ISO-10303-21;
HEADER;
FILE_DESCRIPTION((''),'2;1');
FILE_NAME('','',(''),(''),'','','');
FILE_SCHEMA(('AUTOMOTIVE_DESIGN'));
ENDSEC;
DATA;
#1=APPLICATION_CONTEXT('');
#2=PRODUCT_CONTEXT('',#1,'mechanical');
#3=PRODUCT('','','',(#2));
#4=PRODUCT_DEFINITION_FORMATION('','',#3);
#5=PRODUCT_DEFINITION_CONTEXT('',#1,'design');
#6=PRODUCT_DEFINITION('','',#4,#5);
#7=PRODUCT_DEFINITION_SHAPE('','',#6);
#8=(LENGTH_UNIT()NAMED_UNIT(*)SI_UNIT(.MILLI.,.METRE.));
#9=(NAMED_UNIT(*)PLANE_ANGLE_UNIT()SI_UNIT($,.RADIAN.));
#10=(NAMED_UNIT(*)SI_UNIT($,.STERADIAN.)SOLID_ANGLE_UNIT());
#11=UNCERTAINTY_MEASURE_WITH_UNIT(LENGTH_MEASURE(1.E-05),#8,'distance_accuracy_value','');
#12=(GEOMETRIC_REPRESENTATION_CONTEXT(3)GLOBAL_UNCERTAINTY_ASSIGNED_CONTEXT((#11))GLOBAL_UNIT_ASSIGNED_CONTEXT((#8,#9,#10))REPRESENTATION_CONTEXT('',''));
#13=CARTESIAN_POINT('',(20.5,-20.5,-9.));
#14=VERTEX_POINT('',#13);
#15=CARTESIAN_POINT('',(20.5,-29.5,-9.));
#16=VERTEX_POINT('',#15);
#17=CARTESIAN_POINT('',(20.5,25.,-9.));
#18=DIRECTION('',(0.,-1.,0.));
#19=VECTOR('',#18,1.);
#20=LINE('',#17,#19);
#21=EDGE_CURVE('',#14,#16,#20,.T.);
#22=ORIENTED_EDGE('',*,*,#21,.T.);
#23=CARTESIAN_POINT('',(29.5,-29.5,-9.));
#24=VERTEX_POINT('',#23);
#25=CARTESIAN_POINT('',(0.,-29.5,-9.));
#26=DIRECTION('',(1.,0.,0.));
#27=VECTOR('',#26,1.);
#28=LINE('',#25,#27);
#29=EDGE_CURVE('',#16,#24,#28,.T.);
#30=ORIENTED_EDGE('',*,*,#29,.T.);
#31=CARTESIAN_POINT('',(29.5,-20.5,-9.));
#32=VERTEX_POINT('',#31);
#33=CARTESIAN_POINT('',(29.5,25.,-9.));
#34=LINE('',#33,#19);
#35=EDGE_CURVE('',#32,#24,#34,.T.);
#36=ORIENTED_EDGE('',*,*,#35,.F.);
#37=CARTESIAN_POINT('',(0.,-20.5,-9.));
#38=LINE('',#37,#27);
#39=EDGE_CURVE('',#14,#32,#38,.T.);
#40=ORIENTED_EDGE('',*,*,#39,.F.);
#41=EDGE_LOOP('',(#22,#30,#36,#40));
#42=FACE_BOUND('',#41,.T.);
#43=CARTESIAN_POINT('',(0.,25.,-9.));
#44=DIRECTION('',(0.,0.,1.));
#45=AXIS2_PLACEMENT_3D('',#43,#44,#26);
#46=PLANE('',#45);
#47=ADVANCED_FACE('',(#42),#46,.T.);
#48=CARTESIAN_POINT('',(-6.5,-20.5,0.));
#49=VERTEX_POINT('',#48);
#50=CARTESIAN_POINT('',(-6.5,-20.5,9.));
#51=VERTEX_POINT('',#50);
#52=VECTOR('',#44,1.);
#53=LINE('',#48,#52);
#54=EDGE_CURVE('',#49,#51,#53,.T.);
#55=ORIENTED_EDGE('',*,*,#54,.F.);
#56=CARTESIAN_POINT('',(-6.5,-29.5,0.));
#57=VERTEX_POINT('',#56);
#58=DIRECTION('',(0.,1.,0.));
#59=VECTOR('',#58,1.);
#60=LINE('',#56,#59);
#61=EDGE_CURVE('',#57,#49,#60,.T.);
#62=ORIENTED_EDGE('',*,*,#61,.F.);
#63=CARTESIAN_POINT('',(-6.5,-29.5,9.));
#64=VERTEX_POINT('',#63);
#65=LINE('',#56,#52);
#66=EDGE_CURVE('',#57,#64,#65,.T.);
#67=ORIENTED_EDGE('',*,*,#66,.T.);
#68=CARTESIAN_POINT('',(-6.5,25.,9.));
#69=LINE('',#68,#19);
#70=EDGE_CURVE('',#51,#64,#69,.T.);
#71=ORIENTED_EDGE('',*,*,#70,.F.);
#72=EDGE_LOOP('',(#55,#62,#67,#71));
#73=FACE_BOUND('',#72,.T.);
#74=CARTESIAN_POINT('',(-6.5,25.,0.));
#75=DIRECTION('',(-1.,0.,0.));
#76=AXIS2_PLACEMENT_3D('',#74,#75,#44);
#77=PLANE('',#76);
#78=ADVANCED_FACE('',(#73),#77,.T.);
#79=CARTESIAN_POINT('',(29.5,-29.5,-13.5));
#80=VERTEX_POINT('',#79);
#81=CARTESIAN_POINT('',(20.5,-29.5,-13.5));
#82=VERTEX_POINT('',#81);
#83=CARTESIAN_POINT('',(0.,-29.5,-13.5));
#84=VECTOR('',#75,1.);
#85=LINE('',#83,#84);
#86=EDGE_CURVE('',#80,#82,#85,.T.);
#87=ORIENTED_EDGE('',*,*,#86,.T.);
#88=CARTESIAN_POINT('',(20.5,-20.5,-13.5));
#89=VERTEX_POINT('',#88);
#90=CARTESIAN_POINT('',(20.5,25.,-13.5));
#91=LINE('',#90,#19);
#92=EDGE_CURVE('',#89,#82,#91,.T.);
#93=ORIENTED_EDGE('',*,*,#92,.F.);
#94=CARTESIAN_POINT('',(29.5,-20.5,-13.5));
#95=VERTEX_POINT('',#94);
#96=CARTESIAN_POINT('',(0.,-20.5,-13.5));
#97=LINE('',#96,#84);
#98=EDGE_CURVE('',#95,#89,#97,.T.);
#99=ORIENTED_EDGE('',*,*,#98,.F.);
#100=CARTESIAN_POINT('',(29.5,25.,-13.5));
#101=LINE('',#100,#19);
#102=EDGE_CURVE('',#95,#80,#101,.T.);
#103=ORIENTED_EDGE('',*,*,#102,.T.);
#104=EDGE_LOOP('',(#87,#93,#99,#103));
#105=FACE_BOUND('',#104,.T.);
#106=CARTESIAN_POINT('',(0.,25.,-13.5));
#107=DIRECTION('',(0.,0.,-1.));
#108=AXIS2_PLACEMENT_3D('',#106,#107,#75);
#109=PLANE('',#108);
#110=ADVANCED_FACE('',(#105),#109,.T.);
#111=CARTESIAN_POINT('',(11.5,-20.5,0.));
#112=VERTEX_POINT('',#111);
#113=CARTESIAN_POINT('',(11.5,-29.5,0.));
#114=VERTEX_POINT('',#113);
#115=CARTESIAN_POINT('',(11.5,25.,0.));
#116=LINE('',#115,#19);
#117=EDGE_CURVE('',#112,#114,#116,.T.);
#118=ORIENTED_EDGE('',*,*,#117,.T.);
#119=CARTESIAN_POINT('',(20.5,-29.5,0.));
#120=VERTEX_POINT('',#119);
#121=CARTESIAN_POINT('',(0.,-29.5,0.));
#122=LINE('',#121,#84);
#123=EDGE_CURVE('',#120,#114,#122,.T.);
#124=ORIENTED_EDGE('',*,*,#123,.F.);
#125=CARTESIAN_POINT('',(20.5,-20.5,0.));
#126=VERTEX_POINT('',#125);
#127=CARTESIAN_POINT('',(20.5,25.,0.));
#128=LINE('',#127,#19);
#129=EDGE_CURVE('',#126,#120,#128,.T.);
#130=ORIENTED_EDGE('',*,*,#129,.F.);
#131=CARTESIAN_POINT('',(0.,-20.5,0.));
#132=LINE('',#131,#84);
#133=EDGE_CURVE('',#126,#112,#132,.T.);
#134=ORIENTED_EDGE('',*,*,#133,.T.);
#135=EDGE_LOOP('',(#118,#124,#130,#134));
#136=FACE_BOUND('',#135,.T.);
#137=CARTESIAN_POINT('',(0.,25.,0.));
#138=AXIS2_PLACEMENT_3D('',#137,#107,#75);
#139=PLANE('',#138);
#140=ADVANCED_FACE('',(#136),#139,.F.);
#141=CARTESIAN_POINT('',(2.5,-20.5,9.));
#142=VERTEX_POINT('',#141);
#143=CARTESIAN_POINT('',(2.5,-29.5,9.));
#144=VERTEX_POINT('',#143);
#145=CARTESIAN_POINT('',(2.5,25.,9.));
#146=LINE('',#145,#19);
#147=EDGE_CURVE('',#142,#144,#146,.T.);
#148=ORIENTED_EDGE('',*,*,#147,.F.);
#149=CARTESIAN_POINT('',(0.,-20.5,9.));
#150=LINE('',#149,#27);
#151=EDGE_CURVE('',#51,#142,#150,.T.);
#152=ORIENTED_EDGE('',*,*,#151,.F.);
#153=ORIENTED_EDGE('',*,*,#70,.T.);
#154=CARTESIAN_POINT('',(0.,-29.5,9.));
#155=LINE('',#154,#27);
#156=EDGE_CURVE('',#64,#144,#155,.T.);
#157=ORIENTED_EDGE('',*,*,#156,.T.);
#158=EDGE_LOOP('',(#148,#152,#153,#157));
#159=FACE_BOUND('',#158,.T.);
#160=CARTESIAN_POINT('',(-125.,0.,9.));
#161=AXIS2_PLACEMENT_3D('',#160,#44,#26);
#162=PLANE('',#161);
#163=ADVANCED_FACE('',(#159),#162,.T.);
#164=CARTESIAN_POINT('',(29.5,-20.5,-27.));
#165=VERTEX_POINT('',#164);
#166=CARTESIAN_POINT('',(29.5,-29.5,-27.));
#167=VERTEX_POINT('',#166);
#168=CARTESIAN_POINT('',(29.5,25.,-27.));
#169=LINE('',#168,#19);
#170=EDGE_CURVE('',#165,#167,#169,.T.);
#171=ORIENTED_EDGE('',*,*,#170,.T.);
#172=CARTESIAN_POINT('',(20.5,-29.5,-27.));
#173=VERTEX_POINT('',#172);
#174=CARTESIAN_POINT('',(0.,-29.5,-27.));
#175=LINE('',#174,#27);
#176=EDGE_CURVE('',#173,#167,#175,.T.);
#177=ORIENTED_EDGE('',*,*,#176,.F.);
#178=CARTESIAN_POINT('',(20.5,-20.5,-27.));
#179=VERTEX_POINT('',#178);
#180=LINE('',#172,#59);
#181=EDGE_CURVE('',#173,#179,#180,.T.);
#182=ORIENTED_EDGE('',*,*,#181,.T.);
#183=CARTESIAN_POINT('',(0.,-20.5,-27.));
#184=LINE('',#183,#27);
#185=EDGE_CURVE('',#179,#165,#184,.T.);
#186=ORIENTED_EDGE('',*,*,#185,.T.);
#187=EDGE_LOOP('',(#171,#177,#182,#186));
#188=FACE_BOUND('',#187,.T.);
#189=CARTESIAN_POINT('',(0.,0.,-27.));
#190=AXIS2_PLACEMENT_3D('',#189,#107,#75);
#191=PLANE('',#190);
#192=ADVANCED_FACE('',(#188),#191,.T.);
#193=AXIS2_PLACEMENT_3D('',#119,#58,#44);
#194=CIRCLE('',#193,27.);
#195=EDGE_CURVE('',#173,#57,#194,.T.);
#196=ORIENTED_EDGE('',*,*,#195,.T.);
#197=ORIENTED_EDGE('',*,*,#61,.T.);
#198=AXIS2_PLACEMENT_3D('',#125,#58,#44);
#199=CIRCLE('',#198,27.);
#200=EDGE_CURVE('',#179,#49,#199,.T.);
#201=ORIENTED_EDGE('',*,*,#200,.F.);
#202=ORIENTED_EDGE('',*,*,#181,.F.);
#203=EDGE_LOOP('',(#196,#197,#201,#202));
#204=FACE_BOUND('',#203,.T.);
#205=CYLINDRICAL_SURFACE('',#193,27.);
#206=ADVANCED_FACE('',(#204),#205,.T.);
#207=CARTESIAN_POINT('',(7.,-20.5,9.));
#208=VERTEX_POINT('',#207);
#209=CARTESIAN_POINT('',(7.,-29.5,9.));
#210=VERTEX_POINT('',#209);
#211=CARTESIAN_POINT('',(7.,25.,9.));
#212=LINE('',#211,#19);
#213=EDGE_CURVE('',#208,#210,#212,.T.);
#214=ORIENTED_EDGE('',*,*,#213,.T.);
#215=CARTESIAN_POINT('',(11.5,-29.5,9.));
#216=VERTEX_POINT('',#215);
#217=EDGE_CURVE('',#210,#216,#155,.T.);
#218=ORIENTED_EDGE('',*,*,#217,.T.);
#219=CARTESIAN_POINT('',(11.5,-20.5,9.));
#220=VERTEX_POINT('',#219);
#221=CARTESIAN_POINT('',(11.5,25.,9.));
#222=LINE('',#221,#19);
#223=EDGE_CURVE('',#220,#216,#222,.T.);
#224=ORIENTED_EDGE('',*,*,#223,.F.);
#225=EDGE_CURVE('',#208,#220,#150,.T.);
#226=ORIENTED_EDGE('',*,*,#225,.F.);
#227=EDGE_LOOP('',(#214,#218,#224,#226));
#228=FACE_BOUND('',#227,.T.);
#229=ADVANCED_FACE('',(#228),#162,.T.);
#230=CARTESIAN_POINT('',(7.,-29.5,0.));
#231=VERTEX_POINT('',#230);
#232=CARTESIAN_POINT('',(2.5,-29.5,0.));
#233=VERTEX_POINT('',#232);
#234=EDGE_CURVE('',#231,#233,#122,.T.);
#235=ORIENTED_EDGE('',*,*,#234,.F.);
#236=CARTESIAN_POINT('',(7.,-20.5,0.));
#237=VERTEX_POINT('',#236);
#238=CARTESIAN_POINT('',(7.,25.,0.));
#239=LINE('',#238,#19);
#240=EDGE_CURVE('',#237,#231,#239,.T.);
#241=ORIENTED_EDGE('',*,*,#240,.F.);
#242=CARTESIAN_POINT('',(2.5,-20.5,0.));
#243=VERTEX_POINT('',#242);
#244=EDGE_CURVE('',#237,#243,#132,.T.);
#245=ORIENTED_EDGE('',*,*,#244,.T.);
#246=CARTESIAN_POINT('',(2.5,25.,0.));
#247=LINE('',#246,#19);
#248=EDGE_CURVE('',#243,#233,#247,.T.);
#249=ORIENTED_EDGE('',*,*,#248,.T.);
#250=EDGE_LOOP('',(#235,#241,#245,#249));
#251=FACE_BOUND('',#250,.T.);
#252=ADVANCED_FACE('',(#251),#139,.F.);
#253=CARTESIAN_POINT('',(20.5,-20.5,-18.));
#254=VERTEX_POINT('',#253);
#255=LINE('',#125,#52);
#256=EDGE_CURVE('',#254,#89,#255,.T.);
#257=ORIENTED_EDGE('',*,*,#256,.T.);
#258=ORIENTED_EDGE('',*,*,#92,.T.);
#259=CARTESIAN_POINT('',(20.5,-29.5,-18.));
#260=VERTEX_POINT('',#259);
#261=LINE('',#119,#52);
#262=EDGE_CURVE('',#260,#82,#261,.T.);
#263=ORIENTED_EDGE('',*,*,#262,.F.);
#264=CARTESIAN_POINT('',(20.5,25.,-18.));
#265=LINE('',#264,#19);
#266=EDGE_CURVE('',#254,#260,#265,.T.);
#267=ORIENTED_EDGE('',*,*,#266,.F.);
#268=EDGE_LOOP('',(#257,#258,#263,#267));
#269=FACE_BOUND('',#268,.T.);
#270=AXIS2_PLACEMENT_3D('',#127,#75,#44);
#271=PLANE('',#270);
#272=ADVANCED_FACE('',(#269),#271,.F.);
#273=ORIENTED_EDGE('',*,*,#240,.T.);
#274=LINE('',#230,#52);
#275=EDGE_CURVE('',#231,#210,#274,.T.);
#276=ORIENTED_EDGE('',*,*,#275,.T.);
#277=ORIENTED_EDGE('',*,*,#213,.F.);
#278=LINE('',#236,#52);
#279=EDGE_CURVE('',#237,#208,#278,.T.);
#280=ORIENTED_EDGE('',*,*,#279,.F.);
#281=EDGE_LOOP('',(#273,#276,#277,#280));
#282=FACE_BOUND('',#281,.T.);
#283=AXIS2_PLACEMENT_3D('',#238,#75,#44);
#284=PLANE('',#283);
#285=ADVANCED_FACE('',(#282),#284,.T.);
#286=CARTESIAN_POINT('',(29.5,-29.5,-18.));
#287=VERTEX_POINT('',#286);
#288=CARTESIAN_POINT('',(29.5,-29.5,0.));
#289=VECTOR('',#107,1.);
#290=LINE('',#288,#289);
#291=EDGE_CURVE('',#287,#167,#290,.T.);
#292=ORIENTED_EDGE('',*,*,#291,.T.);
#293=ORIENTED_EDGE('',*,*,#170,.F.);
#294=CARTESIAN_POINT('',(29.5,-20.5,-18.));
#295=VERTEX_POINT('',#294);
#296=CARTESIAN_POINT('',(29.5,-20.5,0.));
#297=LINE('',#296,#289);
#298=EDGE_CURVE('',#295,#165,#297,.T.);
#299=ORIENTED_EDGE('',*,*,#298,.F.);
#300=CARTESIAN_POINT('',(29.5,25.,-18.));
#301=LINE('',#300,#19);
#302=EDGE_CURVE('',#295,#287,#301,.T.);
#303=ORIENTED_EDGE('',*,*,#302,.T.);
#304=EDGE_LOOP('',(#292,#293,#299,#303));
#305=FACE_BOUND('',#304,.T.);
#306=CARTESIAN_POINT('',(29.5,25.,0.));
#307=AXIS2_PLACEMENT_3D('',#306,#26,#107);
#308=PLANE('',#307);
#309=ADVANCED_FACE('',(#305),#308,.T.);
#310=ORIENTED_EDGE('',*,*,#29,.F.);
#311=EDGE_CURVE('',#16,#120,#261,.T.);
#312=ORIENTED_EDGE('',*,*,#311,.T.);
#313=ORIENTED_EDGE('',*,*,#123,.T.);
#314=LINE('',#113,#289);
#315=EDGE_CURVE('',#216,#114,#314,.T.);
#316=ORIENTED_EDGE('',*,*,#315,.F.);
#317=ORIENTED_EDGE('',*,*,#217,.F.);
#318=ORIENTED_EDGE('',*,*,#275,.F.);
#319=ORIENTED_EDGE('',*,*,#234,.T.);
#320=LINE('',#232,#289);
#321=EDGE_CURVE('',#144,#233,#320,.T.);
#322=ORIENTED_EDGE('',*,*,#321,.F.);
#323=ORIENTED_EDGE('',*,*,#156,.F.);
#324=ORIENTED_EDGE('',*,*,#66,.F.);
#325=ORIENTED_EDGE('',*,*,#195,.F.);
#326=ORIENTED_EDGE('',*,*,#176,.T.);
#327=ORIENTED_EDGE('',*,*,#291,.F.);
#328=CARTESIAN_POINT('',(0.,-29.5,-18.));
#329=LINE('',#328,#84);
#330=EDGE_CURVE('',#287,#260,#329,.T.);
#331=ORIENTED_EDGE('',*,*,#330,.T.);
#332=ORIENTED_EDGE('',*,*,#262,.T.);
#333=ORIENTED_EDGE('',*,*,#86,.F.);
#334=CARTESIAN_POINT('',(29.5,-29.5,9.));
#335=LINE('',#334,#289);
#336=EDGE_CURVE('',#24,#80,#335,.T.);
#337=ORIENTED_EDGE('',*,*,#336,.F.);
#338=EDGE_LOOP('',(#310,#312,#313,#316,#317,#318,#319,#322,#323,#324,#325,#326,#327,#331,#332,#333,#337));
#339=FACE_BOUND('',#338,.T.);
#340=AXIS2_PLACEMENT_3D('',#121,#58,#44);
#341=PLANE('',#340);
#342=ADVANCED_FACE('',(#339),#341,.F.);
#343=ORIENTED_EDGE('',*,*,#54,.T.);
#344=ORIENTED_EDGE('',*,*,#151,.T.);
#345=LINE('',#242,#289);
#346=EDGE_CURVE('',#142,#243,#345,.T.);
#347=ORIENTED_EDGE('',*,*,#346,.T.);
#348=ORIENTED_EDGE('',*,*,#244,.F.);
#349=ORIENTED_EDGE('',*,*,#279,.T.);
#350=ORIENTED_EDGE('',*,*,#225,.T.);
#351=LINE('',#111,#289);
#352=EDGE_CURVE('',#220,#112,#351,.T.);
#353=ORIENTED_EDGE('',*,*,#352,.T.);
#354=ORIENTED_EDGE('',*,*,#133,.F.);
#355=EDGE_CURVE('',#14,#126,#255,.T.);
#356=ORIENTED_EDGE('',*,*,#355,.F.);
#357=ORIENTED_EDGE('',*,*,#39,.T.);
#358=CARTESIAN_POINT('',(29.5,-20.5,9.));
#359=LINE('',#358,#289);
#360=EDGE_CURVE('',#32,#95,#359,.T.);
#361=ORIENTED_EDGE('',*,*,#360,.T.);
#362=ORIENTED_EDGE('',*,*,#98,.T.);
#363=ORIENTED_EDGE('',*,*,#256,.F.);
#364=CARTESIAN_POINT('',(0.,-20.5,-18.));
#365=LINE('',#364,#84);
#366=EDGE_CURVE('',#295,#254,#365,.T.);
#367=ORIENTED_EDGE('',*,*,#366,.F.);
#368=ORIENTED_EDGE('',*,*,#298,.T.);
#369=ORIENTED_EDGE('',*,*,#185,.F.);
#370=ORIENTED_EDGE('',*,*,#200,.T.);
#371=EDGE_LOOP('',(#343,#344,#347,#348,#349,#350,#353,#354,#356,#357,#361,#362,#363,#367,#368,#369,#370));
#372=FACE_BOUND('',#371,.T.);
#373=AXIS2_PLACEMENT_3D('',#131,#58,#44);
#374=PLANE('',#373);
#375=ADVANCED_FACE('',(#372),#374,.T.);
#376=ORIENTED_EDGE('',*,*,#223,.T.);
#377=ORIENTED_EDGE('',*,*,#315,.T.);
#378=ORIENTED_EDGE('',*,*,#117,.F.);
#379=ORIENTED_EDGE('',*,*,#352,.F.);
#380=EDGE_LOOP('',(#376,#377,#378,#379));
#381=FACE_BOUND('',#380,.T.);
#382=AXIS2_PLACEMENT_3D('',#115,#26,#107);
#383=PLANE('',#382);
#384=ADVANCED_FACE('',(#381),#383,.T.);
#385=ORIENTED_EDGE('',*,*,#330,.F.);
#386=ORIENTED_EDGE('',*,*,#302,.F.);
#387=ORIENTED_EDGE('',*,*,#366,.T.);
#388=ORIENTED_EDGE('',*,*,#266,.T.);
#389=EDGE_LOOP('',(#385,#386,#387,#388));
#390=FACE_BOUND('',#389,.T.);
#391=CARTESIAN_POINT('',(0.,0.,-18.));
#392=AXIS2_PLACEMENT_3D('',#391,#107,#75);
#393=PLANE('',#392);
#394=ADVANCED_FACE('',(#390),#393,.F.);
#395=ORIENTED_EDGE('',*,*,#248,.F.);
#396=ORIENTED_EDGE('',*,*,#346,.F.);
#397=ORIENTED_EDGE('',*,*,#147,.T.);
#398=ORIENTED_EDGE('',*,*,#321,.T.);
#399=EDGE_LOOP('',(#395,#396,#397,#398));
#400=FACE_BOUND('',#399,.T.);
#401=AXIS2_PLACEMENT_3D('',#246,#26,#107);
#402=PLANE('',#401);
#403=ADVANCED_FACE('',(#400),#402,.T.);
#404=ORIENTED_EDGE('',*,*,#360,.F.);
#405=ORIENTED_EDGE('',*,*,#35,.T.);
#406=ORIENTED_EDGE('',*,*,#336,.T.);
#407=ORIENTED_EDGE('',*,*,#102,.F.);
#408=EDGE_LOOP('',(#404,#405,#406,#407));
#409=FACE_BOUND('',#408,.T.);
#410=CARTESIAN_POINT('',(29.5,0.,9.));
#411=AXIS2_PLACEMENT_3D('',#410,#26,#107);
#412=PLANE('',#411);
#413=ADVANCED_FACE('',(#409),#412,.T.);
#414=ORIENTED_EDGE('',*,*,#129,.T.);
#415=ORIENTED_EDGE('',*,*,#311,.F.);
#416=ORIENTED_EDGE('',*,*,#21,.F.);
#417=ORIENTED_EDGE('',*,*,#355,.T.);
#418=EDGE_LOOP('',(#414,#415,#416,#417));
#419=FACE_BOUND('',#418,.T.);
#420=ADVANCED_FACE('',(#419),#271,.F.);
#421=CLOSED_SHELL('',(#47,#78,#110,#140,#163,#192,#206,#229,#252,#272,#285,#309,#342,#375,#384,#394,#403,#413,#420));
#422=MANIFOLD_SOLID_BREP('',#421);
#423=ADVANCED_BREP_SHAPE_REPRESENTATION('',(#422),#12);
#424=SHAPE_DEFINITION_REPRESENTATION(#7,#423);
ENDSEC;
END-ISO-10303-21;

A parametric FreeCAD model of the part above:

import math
import FreeCAD as App
import Part
import Sketcher


def edges_at(feature, points):
    """Names of the edges that pass closest to the given points."""
    edges = feature.Shape.Edges
    near = lambda p: min(range(len(edges)), key=lambda i: edges[i].distToShape(Part.Vertex(*p))[0])
    return sorted({f"Edge{near(p) + 1}" for p in points})

doc = App.newDocument("Part")
body = doc.addObject("PartDesign::Body", "Body")

# Sketch on XY plane
sketch1 = body.newObject("Sketcher::SketchObject", "Sketch")
sketch1.AttachmentSupport = (doc.getObject("XY_Plane"), [""])
sketch1.MapMode = "FlatFace"
sketch1.addGeometry([
    Part.Circle(App.Vector(-125, 0, 0), App.Vector(0, 0, 1), 8),
    Part.Circle(App.Vector(-125, 0, 0), App.Vector(0, 0, 1), 4),
], False)
sketch1.addConstraint([
    Sketcher.Constraint("Coincident", 1, 3, 0, 3),
    Sketcher.Constraint("PointOnObject", 0, 3, -1),
    Sketcher.Constraint("Diameter", 0, 16.0),
    Sketcher.Constraint("Diameter", 1, 8.0),
    Sketcher.Constraint("DistanceX", 0, 3, -1, 1, 125.0),
])
pad1 = body.newObject("PartDesign::Pad", "Pad")
pad1.Profile = sketch1
pad1.Length = 9
body2 = doc.addObject("PartDesign::Body", "Body001")

# Sketch on XY plane
sketch2 = body2.newObject("Sketcher::SketchObject", "Sketch001")
sketch2.AttachmentSupport = (doc.getObject("XY_Plane001"), [""])
sketch2.MapMode = "FlatFace"
sketch2.addGeometry([
    Part.Circle(App.Vector(125, 0, 0), App.Vector(0, 0, 1), 8),
    Part.Circle(App.Vector(125, 0, 0), App.Vector(0, 0, 1), 4),
], False)
sketch2.addConstraint([
    Sketcher.Constraint("Coincident", 1, 3, 0, 3),
    Sketcher.Constraint("PointOnObject", 0, 3, -1),
    Sketcher.Constraint("Diameter", 0, 16.0),
    Sketcher.Constraint("Diameter", 1, 8.0),
    Sketcher.Constraint("DistanceX", -1, 1, 0, 3, 125.0),
])
pad2 = body2.newObject("PartDesign::Pad", "Pad001")
pad2.Profile = sketch2
pad2.Length = 9
body.AllowCompound = True
doc.recompute()

boolean = body.newObject("PartDesign::Boolean", "Boolean")
boolean.Type = "Fuse"
boolean.addObjects([body2])

# Sketch on XY plane
sketch3 = body.newObject("Sketcher::SketchObject", "Sketch002")
sketch3.AttachmentSupport = (doc.getObject("XY_Plane"), [""])
sketch3.MapMode = "FlatFace"
sketch3.addGeometry([
    Part.LineSegment(App.Vector(-175, -75, 0), App.Vector(125, -75, 0)),  # 0
    Part.ArcOfCircle(Part.Circle(App.Vector(225, -75, 0), App.Vector(0, 0, 1), 100), math.radians(143.130102), math.radians(180)),  # 1
    Part.ArcOfCircle(Part.Circle(App.Vector(125, 0, 0), App.Vector(0, 0, 1), 25), math.radians(-36.869896), math.radians(118.072486)),  # 2
    Part.ArcOfCircle(Part.Circle(App.Vector(25, 187.5, 0), App.Vector(0, 0, 1), 187.5), math.radians(-118.072487), math.radians(-61.927513)),  # 3
    Part.ArcOfCircle(Part.Circle(App.Vector(-75, 0, 0), App.Vector(0, 0, 1), 25), math.radians(61.927514), math.radians(120)),  # 4
    Part.ArcOfCircle(Part.Circle(App.Vector(-100, 43.30127, 0), App.Vector(0, 0, 1), 25), math.radians(-120), math.radians(-60)),  # 5
    Part.ArcOfCircle(Part.Circle(App.Vector(-125, 0, 0), App.Vector(0, 0, 1), 25), math.radians(60), math.radians(120)),  # 6
    Part.ArcOfCircle(Part.Circle(App.Vector(-150, 43.30127, 0), App.Vector(0, 0, 1), 25), math.radians(-120), math.radians(-60)),  # 7
    Part.ArcOfCircle(Part.Circle(App.Vector(-175, 0, 0), App.Vector(0, 0, 1), 25), math.radians(60), math.radians(216.869896)),  # 8
    Part.ArcOfCircle(Part.Circle(App.Vector(-275, -75, 0), App.Vector(0, 0, 1), 100), math.radians(0), math.radians(36.869898)),  # 9
    Part.Circle(App.Vector(-175, 0, 0), App.Vector(0, 0, 1), 4),  # 10
    Part.Circle(App.Vector(-125, 0, 0), App.Vector(0, 0, 1), 4),  # 11
    Part.Circle(App.Vector(-75, 0, 0), App.Vector(0, 0, 1), 4),  # 12
    Part.Circle(App.Vector(125, 0, 0), App.Vector(0, 0, 1), 4),  # 13
], False)
sketch3.addConstraint([
    Sketcher.Constraint("Coincident", 0, 2, 1, 2),
    Sketcher.Constraint("Tangent", 1, 1, 2, 1),
    Sketcher.Constraint("Tangent", 2, 2, 3, 2),
    Sketcher.Constraint("Tangent", 3, 1, 4, 1),
    Sketcher.Constraint("Tangent", 4, 2, 5, 2),
    Sketcher.Constraint("Tangent", 5, 1, 6, 1),
    Sketcher.Constraint("Tangent", 6, 2, 7, 2),
    Sketcher.Constraint("Tangent", 7, 1, 8, 1),
    Sketcher.Constraint("Tangent", 8, 2, 9, 2),
    Sketcher.Constraint("Coincident", 9, 1, 0, 1),
    Sketcher.Constraint("Horizontal", 0),
    Sketcher.Constraint("Coincident", 10, 3, 8, 3),
    Sketcher.Constraint("Coincident", 11, 3, 6, 3),
    Sketcher.Constraint("Coincident", 12, 3, 4, 3),
    Sketcher.Constraint("Coincident", 13, 3, 2, 3),
    Sketcher.Constraint("Equal", 2, 4),
    Sketcher.Constraint("Equal", 4, 5),
    Sketcher.Constraint("Equal", 5, 6),
    Sketcher.Constraint("Equal", 6, 7),
    Sketcher.Constraint("Equal", 7, 8),
    Sketcher.Constraint("Equal", 1, 9),
    Sketcher.Constraint("Equal", 10, 11),
    Sketcher.Constraint("Equal", 11, 12),
    Sketcher.Constraint("Equal", 12, 13),
    Sketcher.Constraint("Symmetric", 2, 3, 6, 3, -1, 1),
    Sketcher.Constraint("PointOnObject", 2, 3, -1),
    Sketcher.Constraint("PointOnObject", 4, 3, -1),
    Sketcher.Constraint("PointOnObject", 8, 3, -1),
    Sketcher.Constraint("Horizontal", 5, 3, 7, 3),
    Sketcher.Constraint("Horizontal", 1, 3, 9, 3),
    Sketcher.Constraint("Horizontal", 9, 3, 0, 2),
    Sketcher.Constraint("Vertical", 13, 3, 0, 2),
    Sketcher.Constraint("Diameter", 10, 8.0),
    Sketcher.Constraint("Radius", 1, 100.0),
    Sketcher.Constraint("Radius", 2, 25.0),
    Sketcher.Constraint("Radius", 3, 187.5),
    Sketcher.Constraint("DistanceX", 0, 1, 0, 2, 300.0),
    Sketcher.Constraint("DistanceX", -1, 1, 1, 3, 225.0),
])
pad3 = body.newObject("PartDesign::Pad", "Pad002")
pad3.Profile = sketch3
pad3.Length = 9
doc.recompute()

fillet = body.newObject("PartDesign::Fillet", "Fillet")
fillet.Base = (pad3, edges_at(pad3, [(-175, -75, 4.5), (125, -75, 4.5)]))
fillet.Radius = 1

# Sketch on XY plane
sketch4 = body.newObject("Sketcher::SketchObject", "Sketch003")
sketch4.AttachmentSupport = (doc.getObject("XY_Plane"), [""])
sketch4.MapMode = "FlatFace"
sketch4.addGeometry([
    Part.LineSegment(App.Vector(25, -75, 0), App.Vector(150, -75, 0)),
    Part.LineSegment(App.Vector(150, -75, 0), App.Vector(150, 25, 0)),
    Part.LineSegment(App.Vector(150, 25, 0), App.Vector(25, 25, 0)),
    Part.LineSegment(App.Vector(25, 25, 0), App.Vector(25, -75, 0)),
], False)
sketch4.addConstraint([
    Sketcher.Constraint("Coincident", 0, 2, 1, 1),
    Sketcher.Constraint("Coincident", 1, 2, 2, 1),
    Sketcher.Constraint("Coincident", 2, 2, 3, 1),
    Sketcher.Constraint("Coincident", 3, 2, 0, 1),
    Sketcher.Constraint("Horizontal", 0),
    Sketcher.Constraint("Vertical", 1),
    Sketcher.Constraint("Horizontal", 2),
    Sketcher.Constraint("Vertical", 3),
    Sketcher.Constraint("DistanceX", 0, 1, 0, 2, 125.0),
    Sketcher.Constraint("DistanceY", 1, 1, 1, 2, 100.0),
    Sketcher.Constraint("DistanceX", -1, 1, 0, 2, 150.0),
    Sketcher.Constraint("DistanceY", 0, 2, -1, 1, 75.0),
])
pocket1 = body.newObject("PartDesign::Pocket", "Pocket")
pocket1.Profile = sketch4
pocket1.Type = "ThroughAll"
pocket1.Reversed = True

# Sketch on XZ plane
sketch5 = body.newObject("Sketcher::SketchObject", "Sketch004")
sketch5.AttachmentSupport = (doc.getObject("XZ_Plane"), [""])
sketch5.MapMode = "FlatFace"
sketch5.AttachmentOffset = App.Placement(App.Vector(0, 0, 75), App.Rotation())
sketch5.addGeometry([
    Part.LineSegment(App.Vector(20.5, 9, 0), App.Vector(20.5, -18, 0)),
    Part.LineSegment(App.Vector(20.5, -18, 0), App.Vector(29.5, -18, 0)),
    Part.LineSegment(App.Vector(29.5, -18, 0), App.Vector(29.5, 9, 0)),
    Part.LineSegment(App.Vector(29.5, 9, 0), App.Vector(20.5, 9, 0)),
], False)
sketch5.addConstraint([
    Sketcher.Constraint("Coincident", 0, 2, 1, 1),
    Sketcher.Constraint("Coincident", 1, 2, 2, 1),
    Sketcher.Constraint("Coincident", 2, 2, 3, 1),
    Sketcher.Constraint("Coincident", 3, 2, 0, 1),
    Sketcher.Constraint("Vertical", 0),
    Sketcher.Constraint("Horizontal", 1),
    Sketcher.Constraint("Vertical", 2),
    Sketcher.Constraint("Horizontal", 3),
    Sketcher.Constraint("DistanceX", 1, 1, 1, 2, 9.0),
    Sketcher.Constraint("DistanceY", 0, 2, 0, 1, 27.0),
    Sketcher.Constraint("DistanceY", 0, 2, -1, 1, 18.0),
    Sketcher.Constraint("DistanceX", -1, 1, 0, 2, 20.5),
])
pad4 = body.newObject("PartDesign::Pad", "Pad003")
pad4.Profile = sketch5
pad4.Length = 75
pad4.Reversed = True

# Sketch on XY plane
sketch6 = body.newObject("Sketcher::SketchObject", "Sketch005")
sketch6.AttachmentSupport = (doc.getObject("XY_Plane"), [""])
sketch6.MapMode = "FlatFace"
sketch6.AttachmentOffset = App.Placement(App.Vector(0, 0, -27), App.Rotation())
sketch6.addGeometry([
    Part.ArcOfCircle(Part.Circle(App.Vector(225, -75, 0), App.Vector(0, 0, 1), 100), math.radians(143.130102), math.radians(180)),  # 0
    Part.LineSegment(App.Vector(125, -75, 0), App.Vector(20.5, -75, 0)),  # 1
    Part.LineSegment(App.Vector(20.5, -75, 0), App.Vector(20.5, 0, 0)),  # 2
    Part.LineSegment(App.Vector(20.5, 0, 0), App.Vector(25, 0, 0)),  # 3
    Part.ArcOfCircle(Part.Circle(App.Vector(25, 187.5, 0), App.Vector(0, 0, 1), 187.5), math.radians(-90), math.radians(-61.927513)),  # 4
    Part.ArcOfCircle(Part.Circle(App.Vector(125, 0, 0), App.Vector(0, 0, 1), 25), math.radians(-36.869896), math.radians(118.072488)),  # 5
    Part.Circle(App.Vector(125, 0, 0), App.Vector(0, 0, 1), 4),  # 6
], False)
sketch6.addConstraint([
    Sketcher.Constraint("Coincident", 0, 2, 1, 1),
    Sketcher.Constraint("Coincident", 1, 2, 2, 1),
    Sketcher.Constraint("Coincident", 2, 2, 3, 1),
    Sketcher.Constraint("Tangent", 3, 2, 4, 1),
    Sketcher.Constraint("Tangent", 4, 2, 5, 2),
    Sketcher.Constraint("Tangent", 5, 1, 0, 1),
    Sketcher.Constraint("Horizontal", 1),
    Sketcher.Constraint("Vertical", 2),
    Sketcher.Constraint("Horizontal", 3),
    Sketcher.Constraint("Coincident", 6, 3, 5, 3),
    Sketcher.Constraint("PointOnObject", 5, 3, -1),
    Sketcher.Constraint("PointOnObject", 2, 2, -1),
    Sketcher.Constraint("Vertical", 6, 3, 0, 2),
    Sketcher.Constraint("Diameter", 6, 8.0),
    Sketcher.Constraint("Radius", 0, 100.0),
    Sketcher.Constraint("Radius", 5, 25.0),
    Sketcher.Constraint("Radius", 4, 187.5),
    Sketcher.Constraint("DistanceY", 2, 1, 2, 2, 75.0),
    Sketcher.Constraint("DistanceX", 1, 2, 1, 1, 104.5),
    Sketcher.Constraint("DistanceX", -1, 1, 0, 3, 225.0),
])
pad5 = body.newObject("PartDesign::Pad", "Pad004")
pad5.Profile = sketch6
pad5.Length = 9

# Sketch on XZ plane
sketch7 = body.newObject("Sketcher::SketchObject", "Sketch006")
sketch7.AttachmentSupport = (doc.getObject("XZ_Plane"), [""])
sketch7.MapMode = "FlatFace"
sketch7.AttachmentOffset = App.Placement(App.Vector(0, 0, 25), App.Rotation())
sketch7.addGeometry([
    Part.LineSegment(App.Vector(56.5, -18, 0), App.Vector(29.5, -18, 0)),  # 0
    Part.LineSegment(App.Vector(29.5, -18, 0), App.Vector(29.5, 9, 0)),  # 1
    Part.ArcOfCircle(Part.Circle(App.Vector(29.5, -18, 0), App.Vector(0, 0, 1), 27), math.radians(0), math.radians(90)),  # 2
    Part.LineSegment(App.Vector(-6.5, 0, 0), App.Vector(20.5, 0, 0)),  # 3
    Part.LineSegment(App.Vector(20.5, 0, 0), App.Vector(20.5, -27, 0)),  # 4
    Part.ArcOfCircle(Part.Circle(App.Vector(20.5, 0, 0), App.Vector(0, 0, 1), 27), math.radians(180), math.radians(270)),  # 5
], False)
sketch7.addConstraint([
    Sketcher.Constraint("Coincident", 0, 2, 1, 1),
    Sketcher.Constraint("Coincident", 1, 2, 2, 2),
    Sketcher.Constraint("Coincident", 2, 1, 0, 1),
    Sketcher.Constraint("Coincident", 3, 2, 4, 1),
    Sketcher.Constraint("Coincident", 4, 2, 5, 2),
    Sketcher.Constraint("Coincident", 5, 1, 3, 1),
    Sketcher.Constraint("Horizontal", 0),
    Sketcher.Constraint("Vertical", 1),
    Sketcher.Constraint("Horizontal", 3),
    Sketcher.Constraint("Vertical", 4),
    Sketcher.Constraint("Coincident", 0, 2, 2, 3),
    Sketcher.Constraint("Coincident", 3, 2, 5, 3),
    Sketcher.Constraint("Equal", 2, 5),
    Sketcher.Constraint("PointOnObject", 5, 3, -1),
    Sketcher.Constraint("Radius", 2, 27.0),
    Sketcher.Constraint("DistanceY", 2, 3, -1, 1, 18.0),
    Sketcher.Constraint("DistanceX", 5, 3, 2, 3, 9.0),
    Sketcher.Constraint("DistanceX", -1, 1, 2, 3, 29.5),
])
pad6 = body.newObject("PartDesign::Pad", "Pad005")
pad6.Profile = sketch7
pad6.Type = "TwoLengths"
pad6.Length = 4.5
pad6.Length2 = 4.5
pad6.Reversed = True

# Sketch on XZ plane
sketch8 = body.newObject("Sketcher::SketchObject", "Sketch007")
sketch8.AttachmentSupport = (doc.getObject("XZ_Plane"), [""])
sketch8.MapMode = "FlatFace"
sketch8.AttachmentOffset = App.Placement(App.Vector(0, 0, 50), App.Rotation())
sketch8.addGeometry([
    Part.LineSegment(App.Vector(56.5, -18, 0), App.Vector(29.5, -18, 0)),  # 0
    Part.LineSegment(App.Vector(29.5, -18, 0), App.Vector(29.5, 9, 0)),  # 1
    Part.ArcOfCircle(Part.Circle(App.Vector(29.5, -18, 0), App.Vector(0, 0, 1), 27), math.radians(0), math.radians(90)),  # 2
    Part.LineSegment(App.Vector(-6.5, 0, 0), App.Vector(20.5, 0, 0)),  # 3
    Part.LineSegment(App.Vector(20.5, 0, 0), App.Vector(20.5, -27, 0)),  # 4
    Part.ArcOfCircle(Part.Circle(App.Vector(20.5, 0, 0), App.Vector(0, 0, 1), 27), math.radians(180), math.radians(270)),  # 5
], False)
sketch8.addConstraint([
    Sketcher.Constraint("Coincident", 0, 2, 1, 1),
    Sketcher.Constraint("Coincident", 1, 2, 2, 2),
    Sketcher.Constraint("Coincident", 2, 1, 0, 1),
    Sketcher.Constraint("Coincident", 3, 2, 4, 1),
    Sketcher.Constraint("Coincident", 4, 2, 5, 2),
    Sketcher.Constraint("Coincident", 5, 1, 3, 1),
    Sketcher.Constraint("Horizontal", 0),
    Sketcher.Constraint("Vertical", 1),
    Sketcher.Constraint("Horizontal", 3),
    Sketcher.Constraint("Vertical", 4),
    Sketcher.Constraint("Coincident", 0, 2, 2, 3),
    Sketcher.Constraint("Coincident", 3, 2, 5, 3),
    Sketcher.Constraint("Equal", 2, 5),
    Sketcher.Constraint("PointOnObject", 5, 3, -1),
    Sketcher.Constraint("Radius", 2, 27.0),
    Sketcher.Constraint("DistanceY", 2, 3, -1, 1, 18.0),
    Sketcher.Constraint("DistanceX", 5, 3, 2, 3, 9.0),
    Sketcher.Constraint("DistanceX", -1, 1, 2, 3, 29.5),
])
pad7 = body.newObject("PartDesign::Pad", "Pad006")
pad7.Profile = sketch8
pad7.Type = "TwoLengths"
pad7.Length = 4.5
pad7.Length2 = 4.5
pad7.Reversed = True

# Sketch on XY plane
sketch9 = body.newObject("Sketcher::SketchObject", "Sketch008")
sketch9.AttachmentSupport = (doc.getObject("XY_Plane"), [""])
sketch9.MapMode = "FlatFace"
sketch9.AttachmentOffset = App.Placement(App.Vector(0, 0, 9), App.Rotation())
sketch9.addGeometry([
    Part.LineSegment(App.Vector(-164.708548, -50, 0), App.Vector(-164.708548, -57, 0)),  # 0
    Part.LineSegment(App.Vector(-164.708548, -57, 0), App.Vector(-155.708548, -57, 0)),  # 1
    Part.LineSegment(App.Vector(-155.708548, -57, 0), App.Vector(-155.708548, -50, 0)),  # 2
    Part.LineSegment(App.Vector(-155.708548, -50, 0), App.Vector(-164.708548, -50, 0)),  # 3
    Part.LineSegment(App.Vector(-164.708548, -66, 0), App.Vector(-164.708548, -75, 0)),  # 4
    Part.LineSegment(App.Vector(-164.708548, -75, 0), App.Vector(-155.708548, -75, 0)),  # 5
    Part.LineSegment(App.Vector(-155.708548, -75, 0), App.Vector(-155.708548, -66, 0)),  # 6
    Part.LineSegment(App.Vector(-155.708548, -66, 0), App.Vector(-164.708548, -66, 0)),  # 7
    Part.LineSegment(App.Vector(-29.851799, -50, 0), App.Vector(-29.851799, -57, 0)),  # 8
    Part.LineSegment(App.Vector(-29.851799, -57, 0), App.Vector(-20.851799, -57, 0)),  # 9
    Part.LineSegment(App.Vector(-20.851799, -57, 0), App.Vector(-20.851799, -50, 0)),  # 10
    Part.LineSegment(App.Vector(-20.851799, -50, 0), App.Vector(-29.851799, -50, 0)),  # 11
    Part.LineSegment(App.Vector(-29.851799, -66, 0), App.Vector(-29.851799, -75, 0)),  # 12
    Part.LineSegment(App.Vector(-29.851799, -75, 0), App.Vector(-20.851799, -75, 0)),  # 13
    Part.LineSegment(App.Vector(-20.851799, -75, 0), App.Vector(-20.851799, -66, 0)),  # 14
    Part.LineSegment(App.Vector(-20.851799, -66, 0), App.Vector(-29.851799, -66, 0)),  # 15
    Part.LineSegment(App.Vector(105.004951, -50, 0), App.Vector(105.004951, -57, 0)),  # 16
    Part.LineSegment(App.Vector(105.004951, -57, 0), App.Vector(114.004951, -57, 0)),  # 17
    Part.LineSegment(App.Vector(114.004951, -57, 0), App.Vector(114.004951, -50, 0)),  # 18
    Part.LineSegment(App.Vector(114.004951, -50, 0), App.Vector(105.004951, -50, 0)),  # 19
    Part.LineSegment(App.Vector(105.004951, -66, 0), App.Vector(105.004951, -75, 0)),  # 20
    Part.LineSegment(App.Vector(105.004951, -75, 0), App.Vector(114.004951, -75, 0)),  # 21
    Part.LineSegment(App.Vector(114.004951, -75, 0), App.Vector(114.004951, -66, 0)),  # 22
    Part.LineSegment(App.Vector(114.004951, -66, 0), App.Vector(105.004951, -66, 0)),  # 23
], False)
sketch9.addConstraint([
    Sketcher.Constraint("Coincident", 0, 2, 1, 1),
    Sketcher.Constraint("Coincident", 1, 2, 2, 1),
    Sketcher.Constraint("Coincident", 2, 2, 3, 1),
    Sketcher.Constraint("Coincident", 3, 2, 0, 1),
    Sketcher.Constraint("Coincident", 4, 2, 5, 1),
    Sketcher.Constraint("Coincident", 5, 2, 6, 1),
    Sketcher.Constraint("Coincident", 6, 2, 7, 1),
    Sketcher.Constraint("Coincident", 7, 2, 4, 1),
    Sketcher.Constraint("Coincident", 8, 2, 9, 1),
    Sketcher.Constraint("Coincident", 9, 2, 10, 1),
    Sketcher.Constraint("Coincident", 10, 2, 11, 1),
    Sketcher.Constraint("Coincident", 11, 2, 8, 1),
    Sketcher.Constraint("Coincident", 12, 2, 13, 1),
    Sketcher.Constraint("Coincident", 13, 2, 14, 1),
    Sketcher.Constraint("Coincident", 14, 2, 15, 1),
    Sketcher.Constraint("Coincident", 15, 2, 12, 1),
    Sketcher.Constraint("Coincident", 16, 2, 17, 1),
    Sketcher.Constraint("Coincident", 17, 2, 18, 1),
    Sketcher.Constraint("Coincident", 18, 2, 19, 1),
    Sketcher.Constraint("Coincident", 19, 2, 16, 1),
    Sketcher.Constraint("Coincident", 20, 2, 21, 1),
    Sketcher.Constraint("Coincident", 21, 2, 22, 1),
    Sketcher.Constraint("Coincident", 22, 2, 23, 1),
    Sketcher.Constraint("Coincident", 23, 2, 20, 1),
    Sketcher.Constraint("Vertical", 0),
    Sketcher.Constraint("Horizontal", 1),
    Sketcher.Constraint("Vertical", 2),
    Sketcher.Constraint("Horizontal", 3),
    Sketcher.Constraint("Vertical", 4),
    Sketcher.Constraint("Horizontal", 5),
    Sketcher.Constraint("Vertical", 6),
    Sketcher.Constraint("Horizontal", 7),
    Sketcher.Constraint("Vertical", 8),
    Sketcher.Constraint("Horizontal", 9),
    Sketcher.Constraint("Vertical", 10),
    Sketcher.Constraint("Horizontal", 11),
    Sketcher.Constraint("Vertical", 12),
    Sketcher.Constraint("Horizontal", 13),
    Sketcher.Constraint("Vertical", 14),
    Sketcher.Constraint("Horizontal", 15),
    Sketcher.Constraint("Vertical", 16),
    Sketcher.Constraint("Horizontal", 17),
    Sketcher.Constraint("Vertical", 18),
    Sketcher.Constraint("Horizontal", 19),
    Sketcher.Constraint("Vertical", 20),
    Sketcher.Constraint("Horizontal", 21),
    Sketcher.Constraint("Vertical", 22),
    Sketcher.Constraint("Horizontal", 23),
    Sketcher.Constraint("Horizontal", 1, 2, 8, 2),
    Sketcher.Constraint("Horizontal", 3, 2, 10, 2),
    Sketcher.Constraint("Horizontal", 5, 2, 12, 2),
    Sketcher.Constraint("Horizontal", 7, 2, 14, 2),
    Sketcher.Constraint("Horizontal", 9, 2, 16, 2),
    Sketcher.Constraint("Horizontal", 11, 2, 18, 2),
    Sketcher.Constraint("Horizontal", 13, 2, 20, 2),
    Sketcher.Constraint("Horizontal", 15, 2, 22, 2),
    Sketcher.Constraint("Vertical", 3, 2, 4, 2),
    Sketcher.Constraint("Vertical", 2, 2, 5, 2),
    Sketcher.Constraint("Vertical", 11, 2, 12, 2),
    Sketcher.Constraint("Vertical", 10, 2, 13, 2),
    Sketcher.Constraint("Vertical", 19, 2, 20, 2),
    Sketcher.Constraint("Vertical", 18, 2, 21, 2),
    Sketcher.Constraint("Equal", 7, 9),
    Sketcher.Constraint("Equal", 15, 17),
    Sketcher.Constraint("Equal", 23, 4),
    Sketcher.Constraint("DistanceX", 1, 1, 1, 2, 9.0),
    Sketcher.Constraint("DistanceY", 0, 2, 0, 1, 7.0),
    Sketcher.Constraint("DistanceY", 0, 2, -1, 1, 57.0),
    Sketcher.Constraint("DistanceY", 4, 2, -1, 1, 75.0),
    Sketcher.Constraint("DistanceX", 8, 2, -1, 1, 29.851799),
    Sketcher.Constraint("DistanceX", 0, 2, -1, 1, 164.708548),
    Sketcher.Constraint("DistanceX", -1, 1, 16, 2, 105.004951),
])
pocket2 = body.newObject("PartDesign::Pocket", "Pocket001")
pocket2.Profile = sketch9
pocket2.Type = "ThroughAll"

# Sketch on XZ plane
sketch10 = body.newObject("Sketcher::SketchObject", "Sketch009")
sketch10.AttachmentSupport = (doc.getObject("XZ_Plane"), [""])
sketch10.MapMode = "FlatFace"
sketch10.AttachmentOffset = App.Placement(App.Vector(0, 0, 20.5), App.Rotation())
sketch10.addGeometry([
    Part.LineSegment(App.Vector(-211.855993, -69.37537, 0), App.Vector(-211.855993, 51.978144, 0)),  # 0
    Part.LineSegment(App.Vector(-211.855993, 51.978144, 0), App.Vector(166.206875, 51.978144, 0)),  # 1
    Part.LineSegment(App.Vector(166.206875, 51.978144, 0), App.Vector(166.206875, -69.37537, 0)),  # 2
    Part.LineSegment(App.Vector(166.206875, -69.37537, 0), App.Vector(-211.855993, -69.37537, 0)),  # 3
    Part.LineSegment(App.Vector(-6.5, 9, 0), App.Vector(-6.5, 0, 0)),  # 4
    Part.ArcOfCircle(Part.Circle(App.Vector(20.5, 0, 0), App.Vector(0, 0, 1), 27), math.radians(180), math.radians(228.445923)),  # 5
    Part.ArcOfCircle(Part.Circle(App.Vector(20.5, 0, 0), App.Vector(0, 0, 1), 27), math.radians(-131.554077), math.radians(-90)),  # 6
    Part.LineSegment(App.Vector(20.5, -27, 0), App.Vector(29.5, -27, 0)),  # 7
    Part.LineSegment(App.Vector(29.5, -27, 0), App.Vector(29.5, -18, 0)),  # 8
    Part.LineSegment(App.Vector(29.5, -18, 0), App.Vector(20.5, -18, 0)),  # 9
    Part.LineSegment(App.Vector(20.5, -18, 0), App.Vector(20.5, -13.5, 0)),  # 10
    Part.LineSegment(App.Vector(20.5, -13.5, 0), App.Vector(29.5, -13.5, 0)),  # 11
    Part.LineSegment(App.Vector(29.5, -13.5, 0), App.Vector(29.5, -9, 0)),  # 12
    Part.LineSegment(App.Vector(29.5, -9, 0), App.Vector(20.5, -9, 0)),  # 13
    Part.LineSegment(App.Vector(20.5, -9, 0), App.Vector(20.5, 0, 0)),  # 14
    Part.LineSegment(App.Vector(20.5, 0, 0), App.Vector(11.5, 0, 0)),  # 15
    Part.LineSegment(App.Vector(11.5, 0, 0), App.Vector(11.5, 9, 0)),  # 16
    Part.LineSegment(App.Vector(11.5, 9, 0), App.Vector(29.5, 9, 0)),  # 17
    Part.ArcOfCircle(Part.Circle(App.Vector(29.5, -18, 0), App.Vector(0, 0, 1), 27), math.radians(48.445923), math.radians(90)),  # 18
    Part.ArcOfCircle(Part.Circle(App.Vector(20.5, 0, 0), App.Vector(0, 0, 1), 27), math.radians(4.68418), math.radians(160.528779)),  # 19
    Part.LineSegment(App.Vector(-4.955844, 9, 0), App.Vector(-6.5, 9, 0)),  # 20
    Part.LineSegment(App.Vector(2.5, 0, 0), App.Vector(2.5, 9, 0)),  # 21
    Part.LineSegment(App.Vector(2.5, 9, 0), App.Vector(7, 9, 0)),  # 22
    Part.LineSegment(App.Vector(7, 9, 0), App.Vector(7, 0, 0)),  # 23
    Part.LineSegment(App.Vector(7, 0, 0), App.Vector(2.5, 0, 0)),  # 24
], False)
sketch10.addConstraint([
    Sketcher.Constraint("Coincident", 0, 2, 1, 1),
    Sketcher.Constraint("Coincident", 1, 2, 2, 1),
    Sketcher.Constraint("Coincident", 2, 2, 3, 1),
    Sketcher.Constraint("Coincident", 3, 2, 0, 1),
    Sketcher.Constraint("Tangent", 4, 2, 5, 1),
    Sketcher.Constraint("Tangent", 5, 2, 6, 1),
    Sketcher.Constraint("Tangent", 6, 2, 7, 1),
    Sketcher.Constraint("Coincident", 7, 2, 8, 1),
    Sketcher.Constraint("Coincident", 8, 2, 9, 1),
    Sketcher.Constraint("Coincident", 9, 2, 10, 1),
    Sketcher.Constraint("Coincident", 10, 2, 11, 1),
    Sketcher.Constraint("Coincident", 11, 2, 12, 1),
    Sketcher.Constraint("Coincident", 12, 2, 13, 1),
    Sketcher.Constraint("Coincident", 13, 2, 14, 1),
    Sketcher.Constraint("Coincident", 14, 2, 15, 1),
    Sketcher.Constraint("Coincident", 15, 2, 16, 1),
    Sketcher.Constraint("Coincident", 16, 2, 17, 1),
    Sketcher.Constraint("Tangent", 17, 2, 18, 2),
    Sketcher.Constraint("Coincident", 18, 1, 19, 1),
    Sketcher.Constraint("Coincident", 19, 2, 20, 1),
    Sketcher.Constraint("Coincident", 20, 2, 4, 1),
    Sketcher.Constraint("Coincident", 21, 2, 22, 1),
    Sketcher.Constraint("Coincident", 22, 2, 23, 1),
    Sketcher.Constraint("Coincident", 23, 2, 24, 1),
    Sketcher.Constraint("Coincident", 24, 2, 21, 1),
    Sketcher.Constraint("Vertical", 0),
    Sketcher.Constraint("Horizontal", 1),
    Sketcher.Constraint("Vertical", 2),
    Sketcher.Constraint("Horizontal", 3),
    Sketcher.Constraint("Vertical", 4),
    Sketcher.Constraint("Horizontal", 7),
    Sketcher.Constraint("Vertical", 8),
    Sketcher.Constraint("Horizontal", 9),
    Sketcher.Constraint("Vertical", 10),
    Sketcher.Constraint("Horizontal", 11),
    Sketcher.Constraint("Vertical", 12),
    Sketcher.Constraint("Horizontal", 13),
    Sketcher.Constraint("Vertical", 14),
    Sketcher.Constraint("Horizontal", 15),
    Sketcher.Constraint("Vertical", 16),
    Sketcher.Constraint("Horizontal", 17),
    Sketcher.Constraint("Horizontal", 20),
    Sketcher.Constraint("Vertical", 21),
    Sketcher.Constraint("Horizontal", 22),
    Sketcher.Constraint("Vertical", 23),
    Sketcher.Constraint("Horizontal", 24),
    Sketcher.Constraint("Coincident", 19, 3, 5, 3),
    Sketcher.Constraint("Coincident", 8, 2, 18, 3),
    Sketcher.Constraint("Coincident", 14, 2, 5, 3),
    Sketcher.Constraint("Equal", 5, 6),
    Sketcher.Constraint("Equal", 6, 18),
    Sketcher.Constraint("Equal", 18, 19),
    Sketcher.Constraint("Symmetric", 12, 2, 17, 2, -1),
    Sketcher.Constraint("PointOnObject", 5, 3, -1),
    Sketcher.Constraint("PointOnObject", 23, 2, -1),
    Sketcher.Constraint("Horizontal", 17, 2, 19, 2),
    Sketcher.Constraint("Horizontal", 20, 2, 21, 2),
    Sketcher.Constraint("Vertical", 6, 2, 9, 2),
    Sketcher.Constraint("Equal", 13, 15),
    Sketcher.Constraint("Equal", 15, 4),
    Sketcher.Constraint("Equal", 24, 10),
    Sketcher.Constraint("Equal", 10, 12),
    Sketcher.Constraint("Radius", 5, 27.0),
    Sketcher.Constraint("DistanceX", 7, 1, 7, 2, 9.0),
    Sketcher.Constraint("DistanceX", -1, 1, 22, 2, 7.0),
    Sketcher.Constraint("DistanceX", 21, 2, 16, 2, 9.0),
    Sketcher.Constraint("DistanceX", 1, 1, 1, 2, 378.062869),
    Sketcher.Constraint("DistanceY", 0, 1, 0, 2, 121.353513),
    Sketcher.Constraint("DistanceY", 2, 2, -1, 1, 69.37537),
    Sketcher.Constraint("DistanceX", -1, 1, 5, 2, 2.590181),
    Sketcher.Constraint("DistanceX", 0, 2, -1, 1, 211.855993),
])
pocket3 = body.newObject("PartDesign::Pocket", "Pocket002")
pocket3.Profile = sketch10
pocket3.Type = "ThroughAll"
pocket3.Midplane = True

# Sketch on XY plane
sketch11 = body.newObject("Sketcher::SketchObject", "Sketch010")
sketch11.AttachmentSupport = (doc.getObject("XY_Plane"), [""])
sketch11.MapMode = "FlatFace"
sketch11.addGeometry([
    Part.LineSegment(App.Vector(-8.904294, 6.808164, 0), App.Vector(-8.904294, -20.5, 0)),  # 0
    Part.LineSegment(App.Vector(-8.904294, -20.5, 0), App.Vector(32.139717, -20.5, 0)),  # 1
    Part.LineSegment(App.Vector(32.139717, -20.5, 0), App.Vector(32.139717, 6.808164, 0)),  # 2
    Part.LineSegment(App.Vector(32.139717, 6.808164, 0), App.Vector(-8.904294, 6.808164, 0)),  # 3
    Part.LineSegment(App.Vector(-8.904294, -29.5, 0), App.Vector(-8.904294, -77.222771, 0)),  # 4
    Part.LineSegment(App.Vector(-8.904294, -77.222771, 0), App.Vector(32.139717, -77.222771, 0)),  # 5
    Part.LineSegment(App.Vector(32.139717, -77.222771, 0), App.Vector(32.139717, -29.5, 0)),  # 6
    Part.LineSegment(App.Vector(32.139717, -29.5, 0), App.Vector(-8.904294, -29.5, 0)),  # 7
], False)
sketch11.addConstraint([
    Sketcher.Constraint("Coincident", 0, 2, 1, 1),
    Sketcher.Constraint("Coincident", 1, 2, 2, 1),
    Sketcher.Constraint("Coincident", 2, 2, 3, 1),
    Sketcher.Constraint("Coincident", 3, 2, 0, 1),
    Sketcher.Constraint("Coincident", 4, 2, 5, 1),
    Sketcher.Constraint("Coincident", 5, 2, 6, 1),
    Sketcher.Constraint("Coincident", 6, 2, 7, 1),
    Sketcher.Constraint("Coincident", 7, 2, 4, 1),
    Sketcher.Constraint("Vertical", 0),
    Sketcher.Constraint("Horizontal", 1),
    Sketcher.Constraint("Vertical", 2),
    Sketcher.Constraint("Horizontal", 3),
    Sketcher.Constraint("Vertical", 4),
    Sketcher.Constraint("Horizontal", 5),
    Sketcher.Constraint("Vertical", 6),
    Sketcher.Constraint("Horizontal", 7),
    Sketcher.Constraint("Vertical", 3, 2, 4, 2),
    Sketcher.Constraint("Vertical", 2, 2, 5, 2),
    Sketcher.Constraint("DistanceY", 6, 2, 1, 2, 9.0),
    Sketcher.Constraint("DistanceY", 0, 2, -1, 1, 20.5),
    Sketcher.Constraint("DistanceX", 1, 1, 1, 2, 41.044012),
    Sketcher.Constraint("DistanceY", 4, 2, 4, 1, 47.722771),
    Sketcher.Constraint("DistanceY", 0, 2, 0, 1, 27.308164),
    Sketcher.Constraint("DistanceX", 0, 2, -1, 1, 8.904294),
])
pocket4 = body.newObject("PartDesign::Pocket", "Pocket003")
pocket4.Profile = sketch11
pocket4.Type = "ThroughAll"
pocket4.Midplane = True

doc.recompute()
